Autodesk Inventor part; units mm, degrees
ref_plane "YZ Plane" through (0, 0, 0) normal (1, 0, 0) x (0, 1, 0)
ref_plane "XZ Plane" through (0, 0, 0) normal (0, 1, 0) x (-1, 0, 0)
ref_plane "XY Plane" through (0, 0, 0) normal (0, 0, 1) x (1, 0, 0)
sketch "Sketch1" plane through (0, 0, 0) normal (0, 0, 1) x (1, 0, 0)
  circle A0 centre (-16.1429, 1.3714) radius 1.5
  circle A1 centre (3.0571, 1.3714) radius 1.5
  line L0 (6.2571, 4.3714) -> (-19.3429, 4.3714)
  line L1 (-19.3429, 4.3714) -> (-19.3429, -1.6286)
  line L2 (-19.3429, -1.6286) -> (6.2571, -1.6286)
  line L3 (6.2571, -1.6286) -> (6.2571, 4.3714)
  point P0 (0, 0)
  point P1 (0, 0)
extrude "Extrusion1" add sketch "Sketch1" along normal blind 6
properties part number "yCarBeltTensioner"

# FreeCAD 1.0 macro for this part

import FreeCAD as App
import Part
import Sketcher

V = App.Vector
Q = App.Units.Quantity

doc = App.newDocument("Part")
body = doc.addObject("PartDesign::Body", "Body")

# Sketch on XY plane
sketch1 = body.newObject("Sketcher::SketchObject", "Sketch")
sketch1.AttachmentSupport = (doc.getObject("XY_Plane"), [""])
sketch1.MapMode = "FlatFace"
sketch1.addGeometry([
    Part.LineSegment(V(6.2571, -1.6286, 0), V(6.2571, 4.3714, 0)),  # 0
    Part.LineSegment(V(6.2571, 4.3714, 0), V(-19.3429, 4.3714, 0)),  # 1
    Part.LineSegment(V(-19.3429, 4.3714, 0), V(-19.3429, -1.6286, 0)),  # 2
    Part.LineSegment(V(-19.3429, -1.6286, 0), V(6.2571, -1.6286, 0)),  # 3
    Part.Circle(V(-16.1429, 1.3714, 0), V(0, 0, 1), 1.5),  # 4
    Part.Circle(V(3.0571, 1.3714, 0), V(0, 0, 1), 1.5),  # 5
], False)
sketch1.addConstraint([
    Sketcher.Constraint("Coincident", 0, 2, 1, 1),
    Sketcher.Constraint("Coincident", 1, 2, 2, 1),
    Sketcher.Constraint("Coincident", 2, 2, 3, 1),
    Sketcher.Constraint("Coincident", 3, 2, 0, 1),
    Sketcher.Constraint("Vertical", 0),
    Sketcher.Constraint("Horizontal", 1),
    Sketcher.Constraint("Vertical", 2),
    Sketcher.Constraint("Horizontal", 3),
    Sketcher.Constraint("Equal", 4, 5),
    Sketcher.Constraint("Horizontal", 4, 3, 5, 3),
    Sketcher.Constraint("Diameter", 4, Q("3 mm")),
    Sketcher.Constraint("DistanceY", 0, 1, 0, 2, Q("6 mm")),
    Sketcher.Constraint("DistanceX", 1, 2, 1, 1, Q("25.6 mm")),
    Sketcher.Constraint("DistanceY", 5, 3, 0, 2, Q("3 mm")),
    Sketcher.Constraint("DistanceX", 4, 3, 5, 3, Q("19.2 mm")),
    Sketcher.Constraint("DistanceX", 5, 3, 0, 2, Q("3.2 mm")),
    Sketcher.Constraint("DistanceX", 4, 3, -1, 1, Q("16.143 mm")),
    Sketcher.Constraint("DistanceY", -1, 1, 4, 3, Q("1.3714 mm")),
])
pad1 = body.newObject("PartDesign::Pad", "Pad")
pad1.Profile = sketch1
pad1.Length = 6

doc.recompute()
